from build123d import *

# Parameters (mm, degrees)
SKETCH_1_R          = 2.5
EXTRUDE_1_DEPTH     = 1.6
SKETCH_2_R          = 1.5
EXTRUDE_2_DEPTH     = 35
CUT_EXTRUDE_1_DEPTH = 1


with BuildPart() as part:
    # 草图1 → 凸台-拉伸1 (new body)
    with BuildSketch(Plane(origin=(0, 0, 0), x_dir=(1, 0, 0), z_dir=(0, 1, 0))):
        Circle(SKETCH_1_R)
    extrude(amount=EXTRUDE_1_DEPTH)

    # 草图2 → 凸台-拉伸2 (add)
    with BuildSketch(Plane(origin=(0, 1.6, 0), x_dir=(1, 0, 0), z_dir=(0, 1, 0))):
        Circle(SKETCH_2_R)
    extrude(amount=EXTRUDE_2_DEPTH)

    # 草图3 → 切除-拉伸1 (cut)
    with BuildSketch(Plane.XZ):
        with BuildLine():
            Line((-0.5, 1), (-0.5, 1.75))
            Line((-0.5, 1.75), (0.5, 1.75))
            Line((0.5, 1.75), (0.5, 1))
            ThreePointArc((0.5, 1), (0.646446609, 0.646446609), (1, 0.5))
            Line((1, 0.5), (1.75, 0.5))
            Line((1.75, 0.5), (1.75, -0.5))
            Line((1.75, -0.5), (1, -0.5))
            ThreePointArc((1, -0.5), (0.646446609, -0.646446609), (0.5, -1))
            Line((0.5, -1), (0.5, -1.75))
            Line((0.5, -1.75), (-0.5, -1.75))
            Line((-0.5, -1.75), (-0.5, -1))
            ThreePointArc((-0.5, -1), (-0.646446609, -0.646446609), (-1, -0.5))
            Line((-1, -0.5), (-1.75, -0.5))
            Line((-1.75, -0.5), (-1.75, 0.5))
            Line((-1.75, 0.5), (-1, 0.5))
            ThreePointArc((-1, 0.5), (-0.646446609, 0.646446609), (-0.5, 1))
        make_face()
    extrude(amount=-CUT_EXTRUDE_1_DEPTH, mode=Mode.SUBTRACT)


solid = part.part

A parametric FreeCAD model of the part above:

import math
import FreeCAD as App
import Part
import Sketcher

V = App.Vector

doc = App.newDocument("Part")
params = doc.addObject("Spreadsheet::Sheet", "Params")
for row, (alias, value) in enumerate([
    ("sketch1_diameter", "5 mm"),
    ("pad1_length", "1.6 mm"),
    ("sketch2_diameter", "3 mm"),
    ("pad2_length", "35 mm"),
    ("sketch3_radius", "0.5 mm"),
    ("sketch3_width", "1 mm"),
    ("sketch3_width2", "0.75 mm"),
    ("pocket1_length", "1 mm"),
], start=1):
    params.set(f"A{row}", alias)
    params.set(f"B{row}", "=" + value)
    params.setAlias(f"B{row}", alias)

body = doc.addObject("PartDesign::Body", "Body")

# Sketch on XZ plane
sketch1 = doc.addObject("Sketcher::SketchObject", "Sketch")
body.addObject(sketch1)
sketch1.AttachmentSupport = (doc.XZ_Plane, [""])
sketch1.MapMode = "FlatFace"
sketch1.addGeometry(Part.Circle(V(0, 0, 0), V(0, 0, 1), 2.5), False)
sketch1.addConstraint([
    Sketcher.Constraint("Coincident", 0, 3, -1, 1),
    Sketcher.Constraint("Diameter", 0, 5.0),
])
sketch1.setExpression("Constraints[1]", "Params.sketch1_diameter")
pad1 = doc.addObject("PartDesign::Pad", "Pad")
body.addObject(pad1)
pad1.Profile = sketch1
pad1.setExpression("Length", "Params.pad1_length")
pad1.Reversed = True

# Sketch on XZ plane
sketch2 = doc.addObject("Sketcher::SketchObject", "Sketch001")
body.addObject(sketch2)
sketch2.AttachmentSupport = (doc.XZ_Plane, [""])
sketch2.MapMode = "FlatFace"
sketch2.AttachmentOffset = App.Placement(V(0, 0, -1.6), App.Rotation())
sketch2.addGeometry(Part.Circle(V(0, 0, 0), V(0, 0, 1), 1.5), False)
sketch2.addConstraint([
    Sketcher.Constraint("Coincident", 0, 3, -1, 1),
    Sketcher.Constraint("Diameter", 0, 3.0),
])
sketch2.setExpression("Constraints[1]", "Params.sketch2_diameter")
pad2 = doc.addObject("PartDesign::Pad", "Pad001")
body.addObject(pad2)
pad2.Profile = sketch2
pad2.setExpression("Length", "Params.pad2_length")
pad2.Reversed = True

# Sketch on XZ plane
sketch3 = doc.addObject("Sketcher::SketchObject", "Sketch002")
body.addObject(sketch3)
sketch3.AttachmentSupport = (doc.XZ_Plane, [""])
sketch3.MapMode = "FlatFace"
sketch3.addGeometry([
    Part.LineSegment(V(-0.5, 1.75, 0), V(-0.5, 1, 0)),  # 0
    Part.ArcOfCircle(Part.Circle(V(-1, 1, 0), V(0, 0, 1), 0.5), math.radians(-90), math.radians(0)),  # 1
    Part.LineSegment(V(-1, 0.5, 0), V(-1.75, 0.5, 0)),  # 2
    Part.LineSegment(V(-1.75, 0.5, 0), V(-1.75, -0.5, 0)),  # 3
    Part.LineSegment(V(-1.75, -0.5, 0), V(-1, -0.5, 0)),  # 4
    Part.ArcOfCircle(Part.Circle(V(-1, -1, 0), V(0, 0, 1), 0.5), math.radians(0), math.radians(90)),  # 5
    Part.LineSegment(V(-0.5, -1, 0), V(-0.5, -1.75, 0)),  # 6
    Part.LineSegment(V(-0.5, -1.75, 0), V(0.5, -1.75, 0)),  # 7
    Part.LineSegment(V(0.5, -1.75, 0), V(0.5, -1, 0)),  # 8
    Part.ArcOfCircle(Part.Circle(V(1, -1, 0), V(0, 0, 1), 0.5), math.radians(90), math.radians(180)),  # 9
    Part.LineSegment(V(1, -0.5, 0), V(1.75, -0.5, 0)),  # 10
    Part.LineSegment(V(1.75, -0.5, 0), V(1.75, 0.5, 0)),  # 11
    Part.LineSegment(V(1.75, 0.5, 0), V(1, 0.5, 0)),  # 12
    Part.ArcOfCircle(Part.Circle(V(1, 1, 0), V(0, 0, 1), 0.5), math.radians(180), math.radians(270)),  # 13
    Part.LineSegment(V(0.5, 1, 0), V(0.5, 1.75, 0)),  # 14
    Part.LineSegment(V(0.5, 1.75, 0), V(-0.5, 1.75, 0)),  # 15
], False)
sketch3.addConstraint([
    Sketcher.Constraint("Tangent", 0, 2, 1, 2),
    Sketcher.Constraint("Tangent", 1, 1, 2, 1),
    Sketcher.Constraint("Coincident", 2, 2, 3, 1),
    Sketcher.Constraint("Coincident", 3, 2, 4, 1),
    Sketcher.Constraint("Tangent", 4, 2, 5, 2),
    Sketcher.Constraint("Tangent", 5, 1, 6, 1),
    Sketcher.Constraint("Coincident", 6, 2, 7, 1),
    Sketcher.Constraint("Coincident", 7, 2, 8, 1),
    Sketcher.Constraint("Tangent", 8, 2, 9, 2),
    Sketcher.Constraint("Tangent", 9, 1, 10, 1),
    Sketcher.Constraint("Coincident", 10, 2, 11, 1),
    Sketcher.Constraint("Coincident", 11, 2, 12, 1),
    Sketcher.Constraint("Tangent", 12, 2, 13, 2),
    Sketcher.Constraint("Tangent", 13, 1, 14, 1),
    Sketcher.Constraint("Coincident", 14, 2, 15, 1),
    Sketcher.Constraint("Coincident", 15, 2, 0, 1),
    Sketcher.Constraint("Vertical", 0),
    Sketcher.Constraint("Horizontal", 2),
    Sketcher.Constraint("Vertical", 3),
    Sketcher.Constraint("Horizontal", 4),
    Sketcher.Constraint("Vertical", 6),
    Sketcher.Constraint("Horizontal", 7),
    Sketcher.Constraint("Vertical", 8),
    Sketcher.Constraint("Horizontal", 10),
    Sketcher.Constraint("Vertical", 11),
    Sketcher.Constraint("Horizontal", 12),
    Sketcher.Constraint("Vertical", 14),
    Sketcher.Constraint("Horizontal", 15),
    Sketcher.Constraint("Equal", 1, 5),
    Sketcher.Constraint("Equal", 5, 9),
    Sketcher.Constraint("Equal", 9, 13),
    Sketcher.Constraint("Symmetric", 1, 3, 9, 3, -1, 1),
    Sketcher.Constraint("Symmetric", 5, 3, 13, 3, -1, 1),
    Sketcher.Constraint("Symmetric", 5, 3, 9, 3, -2),
    Sketcher.Constraint("Equal", 4, 10),
    Sketcher.Constraint("Equal", 12, 0),
    Sketcher.Constraint("Equal", 15, 3),
    Sketcher.Constraint("Equal", 0, 6),
    Sketcher.Constraint("Radius", 1, 0.5),
    Sketcher.Constraint("DistanceX", 7, 1, 7, 2, 1.0),
    Sketcher.Constraint("DistanceX", 2, 2, 2, 1, 0.75),
])
sketch3.setExpression("Constraints[38]", "Params.sketch3_radius")
sketch3.setExpression("Constraints[39]", "Params.sketch3_width")
sketch3.setExpression("Constraints[40]", "Params.sketch3_width2")
pocket1 = doc.addObject("PartDesign::Pocket", "Pocket")
body.addObject(pocket1)
pocket1.Profile = sketch3
pocket1.setExpression("Length", "Params.pocket1_length")

doc.recompute()
